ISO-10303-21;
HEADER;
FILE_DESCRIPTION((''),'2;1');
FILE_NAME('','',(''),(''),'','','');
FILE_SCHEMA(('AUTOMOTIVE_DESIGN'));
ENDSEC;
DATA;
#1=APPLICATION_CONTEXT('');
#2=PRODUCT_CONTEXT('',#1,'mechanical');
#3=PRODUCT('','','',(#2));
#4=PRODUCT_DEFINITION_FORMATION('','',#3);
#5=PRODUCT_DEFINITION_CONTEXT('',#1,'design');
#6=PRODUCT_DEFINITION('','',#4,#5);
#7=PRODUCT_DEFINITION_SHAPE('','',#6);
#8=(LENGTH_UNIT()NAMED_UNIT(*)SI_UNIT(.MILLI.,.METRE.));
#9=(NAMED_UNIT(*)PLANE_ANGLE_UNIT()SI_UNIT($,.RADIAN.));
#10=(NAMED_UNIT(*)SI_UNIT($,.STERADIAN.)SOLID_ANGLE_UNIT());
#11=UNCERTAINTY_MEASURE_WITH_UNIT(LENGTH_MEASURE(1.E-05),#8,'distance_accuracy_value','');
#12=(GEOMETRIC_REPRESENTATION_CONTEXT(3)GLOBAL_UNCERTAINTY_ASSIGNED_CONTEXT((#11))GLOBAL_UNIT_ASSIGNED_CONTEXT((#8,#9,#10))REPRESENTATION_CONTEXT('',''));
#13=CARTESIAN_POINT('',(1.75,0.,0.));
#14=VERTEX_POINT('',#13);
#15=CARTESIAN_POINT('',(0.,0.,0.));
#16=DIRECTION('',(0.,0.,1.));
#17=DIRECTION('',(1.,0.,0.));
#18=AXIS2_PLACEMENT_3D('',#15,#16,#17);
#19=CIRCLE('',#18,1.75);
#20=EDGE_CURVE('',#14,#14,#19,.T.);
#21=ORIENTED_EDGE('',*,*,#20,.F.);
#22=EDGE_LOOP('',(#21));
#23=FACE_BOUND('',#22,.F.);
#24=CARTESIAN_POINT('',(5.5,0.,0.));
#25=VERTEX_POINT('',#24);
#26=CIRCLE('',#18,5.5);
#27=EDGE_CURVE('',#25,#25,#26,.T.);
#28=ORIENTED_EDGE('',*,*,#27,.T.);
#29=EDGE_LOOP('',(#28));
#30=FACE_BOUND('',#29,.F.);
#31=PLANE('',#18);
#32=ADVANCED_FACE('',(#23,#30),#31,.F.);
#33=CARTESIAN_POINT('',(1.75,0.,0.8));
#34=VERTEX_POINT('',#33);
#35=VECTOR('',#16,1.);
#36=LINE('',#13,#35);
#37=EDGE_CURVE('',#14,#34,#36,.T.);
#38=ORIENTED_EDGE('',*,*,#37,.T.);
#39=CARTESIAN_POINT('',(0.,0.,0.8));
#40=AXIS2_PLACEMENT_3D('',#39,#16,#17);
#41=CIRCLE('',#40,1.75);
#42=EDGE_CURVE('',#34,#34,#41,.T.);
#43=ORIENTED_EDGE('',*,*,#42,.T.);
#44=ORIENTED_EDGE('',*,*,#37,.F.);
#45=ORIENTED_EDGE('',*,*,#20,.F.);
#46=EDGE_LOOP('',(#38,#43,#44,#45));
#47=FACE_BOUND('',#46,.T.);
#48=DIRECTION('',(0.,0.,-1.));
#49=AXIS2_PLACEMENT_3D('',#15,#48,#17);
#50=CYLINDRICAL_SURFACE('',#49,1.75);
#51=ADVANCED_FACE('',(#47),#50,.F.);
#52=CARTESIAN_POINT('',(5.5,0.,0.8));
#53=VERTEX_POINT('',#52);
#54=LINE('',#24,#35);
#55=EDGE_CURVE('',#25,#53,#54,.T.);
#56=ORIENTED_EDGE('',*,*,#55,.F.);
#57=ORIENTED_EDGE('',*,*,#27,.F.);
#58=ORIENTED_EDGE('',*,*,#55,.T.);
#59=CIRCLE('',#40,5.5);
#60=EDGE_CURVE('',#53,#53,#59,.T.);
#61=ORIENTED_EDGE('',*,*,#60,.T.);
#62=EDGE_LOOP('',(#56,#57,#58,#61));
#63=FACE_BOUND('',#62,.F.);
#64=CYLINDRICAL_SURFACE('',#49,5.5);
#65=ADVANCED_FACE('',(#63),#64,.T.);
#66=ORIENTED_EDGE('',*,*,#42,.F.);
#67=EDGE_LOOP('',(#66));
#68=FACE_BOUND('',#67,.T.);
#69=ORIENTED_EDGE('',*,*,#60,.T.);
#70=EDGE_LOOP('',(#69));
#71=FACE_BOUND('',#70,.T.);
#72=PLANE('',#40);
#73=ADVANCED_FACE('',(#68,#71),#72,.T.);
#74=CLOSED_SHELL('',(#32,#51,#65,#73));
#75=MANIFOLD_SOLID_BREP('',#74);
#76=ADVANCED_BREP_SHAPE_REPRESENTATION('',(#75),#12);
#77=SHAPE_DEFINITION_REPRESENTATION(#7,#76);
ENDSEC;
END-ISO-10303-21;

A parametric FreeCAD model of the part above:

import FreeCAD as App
import Part
import Sketcher

V = App.Vector

doc = App.newDocument("Part")
body = doc.addObject("PartDesign::Body", "Body")

sketch1 = body.newObject("Sketcher::SketchObject", "Sketch")
sketch1.AttachmentSupport = (doc.getObject("XY_Plane"), [""])
sketch1.MapMode = "FlatFace"
sketch1.addGeometry([
    Part.Circle(V(0, 0, 0), V(0, 0, 1), 5.5),
    Part.Circle(V(0, 0, 0), V(0, 0, 1), 1.75),
], False)
sketch1.addConstraint([
    Sketcher.Constraint("Coincident", 0, 3, -1, 1),
    Sketcher.Constraint("Coincident", 1, 3, -1, 1),
    Sketcher.Constraint("Diameter", 0, 11.0),
    Sketcher.Constraint("Diameter", 1, 3.5),
])
pad1 = body.newObject("PartDesign::Pad", "Pad")
pad1.Profile = sketch1
pad1.Length = 0.8

doc.recompute()
